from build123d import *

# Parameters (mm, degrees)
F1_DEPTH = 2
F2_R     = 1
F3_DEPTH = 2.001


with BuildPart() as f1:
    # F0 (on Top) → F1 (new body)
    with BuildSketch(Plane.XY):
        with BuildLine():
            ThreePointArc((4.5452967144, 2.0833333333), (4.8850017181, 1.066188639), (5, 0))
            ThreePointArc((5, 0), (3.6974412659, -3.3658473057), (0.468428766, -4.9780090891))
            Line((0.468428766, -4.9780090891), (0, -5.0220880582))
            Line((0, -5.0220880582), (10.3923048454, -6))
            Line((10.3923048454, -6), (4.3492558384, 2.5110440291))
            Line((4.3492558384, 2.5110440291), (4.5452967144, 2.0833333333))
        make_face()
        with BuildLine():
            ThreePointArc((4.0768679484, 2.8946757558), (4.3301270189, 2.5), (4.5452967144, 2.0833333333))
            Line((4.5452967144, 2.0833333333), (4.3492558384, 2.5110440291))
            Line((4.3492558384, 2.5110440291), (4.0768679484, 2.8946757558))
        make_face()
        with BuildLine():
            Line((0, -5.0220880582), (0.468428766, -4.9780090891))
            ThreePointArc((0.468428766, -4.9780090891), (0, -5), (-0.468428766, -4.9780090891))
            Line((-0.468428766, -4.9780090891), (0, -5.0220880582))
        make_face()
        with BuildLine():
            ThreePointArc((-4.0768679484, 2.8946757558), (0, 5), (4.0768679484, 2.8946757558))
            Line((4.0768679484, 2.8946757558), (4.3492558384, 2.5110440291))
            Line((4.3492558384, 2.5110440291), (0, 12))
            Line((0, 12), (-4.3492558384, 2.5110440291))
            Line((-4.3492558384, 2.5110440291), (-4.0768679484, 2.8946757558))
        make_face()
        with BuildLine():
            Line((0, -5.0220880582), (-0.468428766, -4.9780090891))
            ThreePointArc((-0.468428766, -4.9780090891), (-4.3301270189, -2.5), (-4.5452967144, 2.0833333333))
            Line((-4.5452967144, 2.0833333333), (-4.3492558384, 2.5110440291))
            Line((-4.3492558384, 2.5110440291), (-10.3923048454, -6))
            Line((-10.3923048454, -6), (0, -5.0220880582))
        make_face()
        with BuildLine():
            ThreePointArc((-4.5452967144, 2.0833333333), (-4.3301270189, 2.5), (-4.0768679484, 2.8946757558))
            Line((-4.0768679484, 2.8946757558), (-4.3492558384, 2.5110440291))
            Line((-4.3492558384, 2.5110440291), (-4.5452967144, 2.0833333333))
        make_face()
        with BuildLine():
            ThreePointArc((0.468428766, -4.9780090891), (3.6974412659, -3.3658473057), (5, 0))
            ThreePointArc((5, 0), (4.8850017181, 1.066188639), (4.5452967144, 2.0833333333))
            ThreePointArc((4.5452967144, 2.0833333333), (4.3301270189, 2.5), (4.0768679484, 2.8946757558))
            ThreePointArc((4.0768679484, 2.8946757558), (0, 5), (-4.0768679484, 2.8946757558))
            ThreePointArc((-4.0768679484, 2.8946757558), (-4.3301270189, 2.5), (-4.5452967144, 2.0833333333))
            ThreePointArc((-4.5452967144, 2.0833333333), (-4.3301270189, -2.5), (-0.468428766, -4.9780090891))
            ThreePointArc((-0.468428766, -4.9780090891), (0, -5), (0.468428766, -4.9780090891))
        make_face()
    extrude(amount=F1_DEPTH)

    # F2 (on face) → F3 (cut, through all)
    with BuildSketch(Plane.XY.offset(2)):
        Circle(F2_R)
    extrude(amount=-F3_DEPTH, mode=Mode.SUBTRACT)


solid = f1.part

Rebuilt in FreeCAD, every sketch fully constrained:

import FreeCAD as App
import Part
import Sketcher

V = App.Vector
Q = App.Units.Quantity


def add_polygon(sketch, points):
    """Adds a closed chain of lines whose ends are joined by coincident constraints."""
    first, n = sketch.GeometryCount, len(points)
    for a, b in zip(points, points[1:] + points[:1]):
        sketch.addGeometry(Part.LineSegment(App.Vector(*a, 0), App.Vector(*b, 0)), False)
    for i in range(n):
        sketch.addConstraint(Sketcher.Constraint("Coincident", first + i, 2, first + (i + 1) % n, 1))

doc = App.newDocument("Part")
params = doc.addObject("Spreadsheet::Sheet", "Params")
for row, (alias, value) in enumerate([
    ("pad1_length", "2 mm"),
    ("sketch2_diameter", "2 mm"),
], start=1):
    params.set(f"A{row}", alias)
    params.set(f"B{row}", "=" + value)
    params.setAlias(f"B{row}", alias)

body = doc.addObject("PartDesign::Body", "Body")

# Sketch on XY plane
sketch1 = doc.addObject("Sketcher::SketchObject", "Sketch")
body.addObject(sketch1)
sketch1.AttachmentSupport = (doc.XY_Plane, [""])
sketch1.MapMode = "FlatFace"
add_polygon(sketch1, [(0, 12), (-4.349256, 2.511044), (-10.392305, -6), (0, -5.022088), (10.392305, -6), (4.349256, 2.511044)])  # lines 0-5
sketch1.addConstraint([
    Sketcher.Constraint("Symmetric", 1, 2, 3, 2, -2),
    Sketcher.Constraint("Symmetric", 0, 2, 4, 2, -2),
    Sketcher.Constraint("PointOnObject", 2, 2, -2),
    Sketcher.Constraint("PointOnObject", 5, 2, -2),
    Sketcher.Constraint("Equal", 0, 1),
    Sketcher.Constraint("Equal", 1, 2),
    Sketcher.Constraint("DistanceY", 1, 2, -1, 1, Q("6 mm")),
    Sketcher.Constraint("DistanceY", -1, 1, 5, 2, Q("12 mm")),
    Sketcher.Constraint("DistanceY", 2, 2, -1, 1, Q("5.022088 mm")),
    Sketcher.Constraint("DistanceX", 1, 2, 0, 2, Q("6.043049 mm")),
])
pad1 = doc.addObject("PartDesign::Pad", "Pad")
body.addObject(pad1)
pad1.Profile = sketch1
pad1.setExpression("Length", "Params.pad1_length")

# Sketch on XY plane
sketch2 = doc.addObject("Sketcher::SketchObject", "Sketch001")
body.addObject(sketch2)
sketch2.AttachmentSupport = (doc.XY_Plane, [""])
sketch2.MapMode = "FlatFace"
sketch2.AttachmentOffset = App.Placement(V(0, 0, 2), App.Rotation())
sketch2.addGeometry(Part.Circle(V(0, 0, 0), V(0, 0, 1), 1), False)
sketch2.addConstraint([
    Sketcher.Constraint("Coincident", 0, 3, -1, 1),
    Sketcher.Constraint("Diameter", 0, Q("2 mm")),
])
sketch2.setExpression("Constraints[1]", "Params.sketch2_diameter")
pocket1 = doc.addObject("PartDesign::Pocket", "Pocket")
body.addObject(pocket1)
pocket1.Profile = sketch2
pocket1.Type = "ThroughAll"

doc.recompute()
